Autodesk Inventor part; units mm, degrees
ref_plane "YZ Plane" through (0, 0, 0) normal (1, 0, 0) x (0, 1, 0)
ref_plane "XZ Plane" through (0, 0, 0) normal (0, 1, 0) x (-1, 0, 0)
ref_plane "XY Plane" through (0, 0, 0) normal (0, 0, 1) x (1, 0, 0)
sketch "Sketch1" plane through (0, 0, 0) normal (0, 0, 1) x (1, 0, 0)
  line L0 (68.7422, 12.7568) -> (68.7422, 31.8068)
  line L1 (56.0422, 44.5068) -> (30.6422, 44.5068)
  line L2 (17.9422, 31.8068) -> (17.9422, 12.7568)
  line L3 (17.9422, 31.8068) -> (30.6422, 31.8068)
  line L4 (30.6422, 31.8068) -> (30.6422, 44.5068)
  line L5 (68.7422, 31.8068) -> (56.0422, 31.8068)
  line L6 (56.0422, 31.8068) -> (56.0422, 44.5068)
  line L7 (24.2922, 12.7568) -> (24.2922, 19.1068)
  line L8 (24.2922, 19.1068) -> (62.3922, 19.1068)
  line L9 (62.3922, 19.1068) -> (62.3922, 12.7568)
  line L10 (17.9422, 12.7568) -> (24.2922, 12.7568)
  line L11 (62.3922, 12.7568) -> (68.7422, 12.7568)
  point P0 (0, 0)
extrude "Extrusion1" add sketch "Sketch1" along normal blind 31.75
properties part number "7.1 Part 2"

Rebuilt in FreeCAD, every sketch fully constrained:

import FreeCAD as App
import Part
import Sketcher

V = App.Vector
Q = App.Units.Quantity


def add_polygon(sketch, points):
    """Adds a closed chain of lines whose ends are joined by coincident constraints."""
    first, n = sketch.GeometryCount, len(points)
    for a, b in zip(points, points[1:] + points[:1]):
        sketch.addGeometry(Part.LineSegment(App.Vector(*a, 0), App.Vector(*b, 0)), False)
    for i in range(n):
        sketch.addConstraint(Sketcher.Constraint("Coincident", first + i, 2, first + (i + 1) % n, 1))

doc = App.newDocument("Part")
body = doc.addObject("PartDesign::Body", "Body")

sketch1 = body.newObject("Sketcher::SketchObject", "Sketch")
sketch1.AttachmentSupport = (doc.getObject("XY_Plane"), [""])
sketch1.MapMode = "FlatFace"
add_polygon(sketch1, [(62, 13), (69, 13), (69, 32), (56, 32), (56, 45), (31, 45), (31, 32), (18, 32), (18, 13), (24, 13), (24, 19), (62, 19)])
sketch1.addConstraint(Sketcher.Constraint("Horizontal", 0))
sketch1.addConstraint(Sketcher.Constraint("Vertical", 1))
sketch1.addConstraint(Sketcher.Constraint("Horizontal", 2))
sketch1.addConstraint(Sketcher.Constraint("Vertical", 3))
sketch1.addConstraint(Sketcher.Constraint("Horizontal", 4))
sketch1.addConstraint(Sketcher.Constraint("Vertical", 5))
sketch1.addConstraint(Sketcher.Constraint("Horizontal", 6))
sketch1.addConstraint(Sketcher.Constraint("Vertical", 7))
sketch1.addConstraint(Sketcher.Constraint("Horizontal", 8))
sketch1.addConstraint(Sketcher.Constraint("Vertical", 9))
sketch1.addConstraint(Sketcher.Constraint("Horizontal", 10))
sketch1.addConstraint(Sketcher.Constraint("Vertical", 11))
sketch1.addConstraint(Sketcher.Constraint("Horizontal", 2, 2, 5, 2))
sketch1.addConstraint(Sketcher.Constraint("Horizontal", 0, 2, 7, 2))
sketch1.addConstraint(Sketcher.Constraint("Equal", 2, 6))
sketch1.addConstraint(Sketcher.Constraint("Equal", 0, 8))
sketch1.addConstraint(Sketcher.Constraint("Equal", 6, 3))
sketch1.addConstraint(Sketcher.Constraint("Equal", 8, 9))
sketch1.addConstraint(Sketcher.Constraint("DistanceX", 4, 2, 4, 1, Q("1 in")))
sketch1.addConstraint(Sketcher.Constraint("DistanceX", 2, 2, 2, 1, Q("0.5 in")))
sketch1.addConstraint(Sketcher.Constraint("DistanceX", 10, 1, 10, 2, Q("1.5 in")))
sketch1.addConstraint(Sketcher.Constraint("DistanceY", 9, 2, 4, 2, Q("1 in")))
sketch1.addConstraint(Sketcher.Constraint("DistanceX", -1, 1, 0, 2, Q("68.7422 mm")))
sketch1.addConstraint(Sketcher.Constraint("DistanceY", -1, 1, 0, 2, Q("12.7568 mm")))
pad1 = body.newObject("PartDesign::Pad", "Pad")
pad1.Profile = sketch1
pad1.Length = Q("1.25 in")

doc.recompute()
